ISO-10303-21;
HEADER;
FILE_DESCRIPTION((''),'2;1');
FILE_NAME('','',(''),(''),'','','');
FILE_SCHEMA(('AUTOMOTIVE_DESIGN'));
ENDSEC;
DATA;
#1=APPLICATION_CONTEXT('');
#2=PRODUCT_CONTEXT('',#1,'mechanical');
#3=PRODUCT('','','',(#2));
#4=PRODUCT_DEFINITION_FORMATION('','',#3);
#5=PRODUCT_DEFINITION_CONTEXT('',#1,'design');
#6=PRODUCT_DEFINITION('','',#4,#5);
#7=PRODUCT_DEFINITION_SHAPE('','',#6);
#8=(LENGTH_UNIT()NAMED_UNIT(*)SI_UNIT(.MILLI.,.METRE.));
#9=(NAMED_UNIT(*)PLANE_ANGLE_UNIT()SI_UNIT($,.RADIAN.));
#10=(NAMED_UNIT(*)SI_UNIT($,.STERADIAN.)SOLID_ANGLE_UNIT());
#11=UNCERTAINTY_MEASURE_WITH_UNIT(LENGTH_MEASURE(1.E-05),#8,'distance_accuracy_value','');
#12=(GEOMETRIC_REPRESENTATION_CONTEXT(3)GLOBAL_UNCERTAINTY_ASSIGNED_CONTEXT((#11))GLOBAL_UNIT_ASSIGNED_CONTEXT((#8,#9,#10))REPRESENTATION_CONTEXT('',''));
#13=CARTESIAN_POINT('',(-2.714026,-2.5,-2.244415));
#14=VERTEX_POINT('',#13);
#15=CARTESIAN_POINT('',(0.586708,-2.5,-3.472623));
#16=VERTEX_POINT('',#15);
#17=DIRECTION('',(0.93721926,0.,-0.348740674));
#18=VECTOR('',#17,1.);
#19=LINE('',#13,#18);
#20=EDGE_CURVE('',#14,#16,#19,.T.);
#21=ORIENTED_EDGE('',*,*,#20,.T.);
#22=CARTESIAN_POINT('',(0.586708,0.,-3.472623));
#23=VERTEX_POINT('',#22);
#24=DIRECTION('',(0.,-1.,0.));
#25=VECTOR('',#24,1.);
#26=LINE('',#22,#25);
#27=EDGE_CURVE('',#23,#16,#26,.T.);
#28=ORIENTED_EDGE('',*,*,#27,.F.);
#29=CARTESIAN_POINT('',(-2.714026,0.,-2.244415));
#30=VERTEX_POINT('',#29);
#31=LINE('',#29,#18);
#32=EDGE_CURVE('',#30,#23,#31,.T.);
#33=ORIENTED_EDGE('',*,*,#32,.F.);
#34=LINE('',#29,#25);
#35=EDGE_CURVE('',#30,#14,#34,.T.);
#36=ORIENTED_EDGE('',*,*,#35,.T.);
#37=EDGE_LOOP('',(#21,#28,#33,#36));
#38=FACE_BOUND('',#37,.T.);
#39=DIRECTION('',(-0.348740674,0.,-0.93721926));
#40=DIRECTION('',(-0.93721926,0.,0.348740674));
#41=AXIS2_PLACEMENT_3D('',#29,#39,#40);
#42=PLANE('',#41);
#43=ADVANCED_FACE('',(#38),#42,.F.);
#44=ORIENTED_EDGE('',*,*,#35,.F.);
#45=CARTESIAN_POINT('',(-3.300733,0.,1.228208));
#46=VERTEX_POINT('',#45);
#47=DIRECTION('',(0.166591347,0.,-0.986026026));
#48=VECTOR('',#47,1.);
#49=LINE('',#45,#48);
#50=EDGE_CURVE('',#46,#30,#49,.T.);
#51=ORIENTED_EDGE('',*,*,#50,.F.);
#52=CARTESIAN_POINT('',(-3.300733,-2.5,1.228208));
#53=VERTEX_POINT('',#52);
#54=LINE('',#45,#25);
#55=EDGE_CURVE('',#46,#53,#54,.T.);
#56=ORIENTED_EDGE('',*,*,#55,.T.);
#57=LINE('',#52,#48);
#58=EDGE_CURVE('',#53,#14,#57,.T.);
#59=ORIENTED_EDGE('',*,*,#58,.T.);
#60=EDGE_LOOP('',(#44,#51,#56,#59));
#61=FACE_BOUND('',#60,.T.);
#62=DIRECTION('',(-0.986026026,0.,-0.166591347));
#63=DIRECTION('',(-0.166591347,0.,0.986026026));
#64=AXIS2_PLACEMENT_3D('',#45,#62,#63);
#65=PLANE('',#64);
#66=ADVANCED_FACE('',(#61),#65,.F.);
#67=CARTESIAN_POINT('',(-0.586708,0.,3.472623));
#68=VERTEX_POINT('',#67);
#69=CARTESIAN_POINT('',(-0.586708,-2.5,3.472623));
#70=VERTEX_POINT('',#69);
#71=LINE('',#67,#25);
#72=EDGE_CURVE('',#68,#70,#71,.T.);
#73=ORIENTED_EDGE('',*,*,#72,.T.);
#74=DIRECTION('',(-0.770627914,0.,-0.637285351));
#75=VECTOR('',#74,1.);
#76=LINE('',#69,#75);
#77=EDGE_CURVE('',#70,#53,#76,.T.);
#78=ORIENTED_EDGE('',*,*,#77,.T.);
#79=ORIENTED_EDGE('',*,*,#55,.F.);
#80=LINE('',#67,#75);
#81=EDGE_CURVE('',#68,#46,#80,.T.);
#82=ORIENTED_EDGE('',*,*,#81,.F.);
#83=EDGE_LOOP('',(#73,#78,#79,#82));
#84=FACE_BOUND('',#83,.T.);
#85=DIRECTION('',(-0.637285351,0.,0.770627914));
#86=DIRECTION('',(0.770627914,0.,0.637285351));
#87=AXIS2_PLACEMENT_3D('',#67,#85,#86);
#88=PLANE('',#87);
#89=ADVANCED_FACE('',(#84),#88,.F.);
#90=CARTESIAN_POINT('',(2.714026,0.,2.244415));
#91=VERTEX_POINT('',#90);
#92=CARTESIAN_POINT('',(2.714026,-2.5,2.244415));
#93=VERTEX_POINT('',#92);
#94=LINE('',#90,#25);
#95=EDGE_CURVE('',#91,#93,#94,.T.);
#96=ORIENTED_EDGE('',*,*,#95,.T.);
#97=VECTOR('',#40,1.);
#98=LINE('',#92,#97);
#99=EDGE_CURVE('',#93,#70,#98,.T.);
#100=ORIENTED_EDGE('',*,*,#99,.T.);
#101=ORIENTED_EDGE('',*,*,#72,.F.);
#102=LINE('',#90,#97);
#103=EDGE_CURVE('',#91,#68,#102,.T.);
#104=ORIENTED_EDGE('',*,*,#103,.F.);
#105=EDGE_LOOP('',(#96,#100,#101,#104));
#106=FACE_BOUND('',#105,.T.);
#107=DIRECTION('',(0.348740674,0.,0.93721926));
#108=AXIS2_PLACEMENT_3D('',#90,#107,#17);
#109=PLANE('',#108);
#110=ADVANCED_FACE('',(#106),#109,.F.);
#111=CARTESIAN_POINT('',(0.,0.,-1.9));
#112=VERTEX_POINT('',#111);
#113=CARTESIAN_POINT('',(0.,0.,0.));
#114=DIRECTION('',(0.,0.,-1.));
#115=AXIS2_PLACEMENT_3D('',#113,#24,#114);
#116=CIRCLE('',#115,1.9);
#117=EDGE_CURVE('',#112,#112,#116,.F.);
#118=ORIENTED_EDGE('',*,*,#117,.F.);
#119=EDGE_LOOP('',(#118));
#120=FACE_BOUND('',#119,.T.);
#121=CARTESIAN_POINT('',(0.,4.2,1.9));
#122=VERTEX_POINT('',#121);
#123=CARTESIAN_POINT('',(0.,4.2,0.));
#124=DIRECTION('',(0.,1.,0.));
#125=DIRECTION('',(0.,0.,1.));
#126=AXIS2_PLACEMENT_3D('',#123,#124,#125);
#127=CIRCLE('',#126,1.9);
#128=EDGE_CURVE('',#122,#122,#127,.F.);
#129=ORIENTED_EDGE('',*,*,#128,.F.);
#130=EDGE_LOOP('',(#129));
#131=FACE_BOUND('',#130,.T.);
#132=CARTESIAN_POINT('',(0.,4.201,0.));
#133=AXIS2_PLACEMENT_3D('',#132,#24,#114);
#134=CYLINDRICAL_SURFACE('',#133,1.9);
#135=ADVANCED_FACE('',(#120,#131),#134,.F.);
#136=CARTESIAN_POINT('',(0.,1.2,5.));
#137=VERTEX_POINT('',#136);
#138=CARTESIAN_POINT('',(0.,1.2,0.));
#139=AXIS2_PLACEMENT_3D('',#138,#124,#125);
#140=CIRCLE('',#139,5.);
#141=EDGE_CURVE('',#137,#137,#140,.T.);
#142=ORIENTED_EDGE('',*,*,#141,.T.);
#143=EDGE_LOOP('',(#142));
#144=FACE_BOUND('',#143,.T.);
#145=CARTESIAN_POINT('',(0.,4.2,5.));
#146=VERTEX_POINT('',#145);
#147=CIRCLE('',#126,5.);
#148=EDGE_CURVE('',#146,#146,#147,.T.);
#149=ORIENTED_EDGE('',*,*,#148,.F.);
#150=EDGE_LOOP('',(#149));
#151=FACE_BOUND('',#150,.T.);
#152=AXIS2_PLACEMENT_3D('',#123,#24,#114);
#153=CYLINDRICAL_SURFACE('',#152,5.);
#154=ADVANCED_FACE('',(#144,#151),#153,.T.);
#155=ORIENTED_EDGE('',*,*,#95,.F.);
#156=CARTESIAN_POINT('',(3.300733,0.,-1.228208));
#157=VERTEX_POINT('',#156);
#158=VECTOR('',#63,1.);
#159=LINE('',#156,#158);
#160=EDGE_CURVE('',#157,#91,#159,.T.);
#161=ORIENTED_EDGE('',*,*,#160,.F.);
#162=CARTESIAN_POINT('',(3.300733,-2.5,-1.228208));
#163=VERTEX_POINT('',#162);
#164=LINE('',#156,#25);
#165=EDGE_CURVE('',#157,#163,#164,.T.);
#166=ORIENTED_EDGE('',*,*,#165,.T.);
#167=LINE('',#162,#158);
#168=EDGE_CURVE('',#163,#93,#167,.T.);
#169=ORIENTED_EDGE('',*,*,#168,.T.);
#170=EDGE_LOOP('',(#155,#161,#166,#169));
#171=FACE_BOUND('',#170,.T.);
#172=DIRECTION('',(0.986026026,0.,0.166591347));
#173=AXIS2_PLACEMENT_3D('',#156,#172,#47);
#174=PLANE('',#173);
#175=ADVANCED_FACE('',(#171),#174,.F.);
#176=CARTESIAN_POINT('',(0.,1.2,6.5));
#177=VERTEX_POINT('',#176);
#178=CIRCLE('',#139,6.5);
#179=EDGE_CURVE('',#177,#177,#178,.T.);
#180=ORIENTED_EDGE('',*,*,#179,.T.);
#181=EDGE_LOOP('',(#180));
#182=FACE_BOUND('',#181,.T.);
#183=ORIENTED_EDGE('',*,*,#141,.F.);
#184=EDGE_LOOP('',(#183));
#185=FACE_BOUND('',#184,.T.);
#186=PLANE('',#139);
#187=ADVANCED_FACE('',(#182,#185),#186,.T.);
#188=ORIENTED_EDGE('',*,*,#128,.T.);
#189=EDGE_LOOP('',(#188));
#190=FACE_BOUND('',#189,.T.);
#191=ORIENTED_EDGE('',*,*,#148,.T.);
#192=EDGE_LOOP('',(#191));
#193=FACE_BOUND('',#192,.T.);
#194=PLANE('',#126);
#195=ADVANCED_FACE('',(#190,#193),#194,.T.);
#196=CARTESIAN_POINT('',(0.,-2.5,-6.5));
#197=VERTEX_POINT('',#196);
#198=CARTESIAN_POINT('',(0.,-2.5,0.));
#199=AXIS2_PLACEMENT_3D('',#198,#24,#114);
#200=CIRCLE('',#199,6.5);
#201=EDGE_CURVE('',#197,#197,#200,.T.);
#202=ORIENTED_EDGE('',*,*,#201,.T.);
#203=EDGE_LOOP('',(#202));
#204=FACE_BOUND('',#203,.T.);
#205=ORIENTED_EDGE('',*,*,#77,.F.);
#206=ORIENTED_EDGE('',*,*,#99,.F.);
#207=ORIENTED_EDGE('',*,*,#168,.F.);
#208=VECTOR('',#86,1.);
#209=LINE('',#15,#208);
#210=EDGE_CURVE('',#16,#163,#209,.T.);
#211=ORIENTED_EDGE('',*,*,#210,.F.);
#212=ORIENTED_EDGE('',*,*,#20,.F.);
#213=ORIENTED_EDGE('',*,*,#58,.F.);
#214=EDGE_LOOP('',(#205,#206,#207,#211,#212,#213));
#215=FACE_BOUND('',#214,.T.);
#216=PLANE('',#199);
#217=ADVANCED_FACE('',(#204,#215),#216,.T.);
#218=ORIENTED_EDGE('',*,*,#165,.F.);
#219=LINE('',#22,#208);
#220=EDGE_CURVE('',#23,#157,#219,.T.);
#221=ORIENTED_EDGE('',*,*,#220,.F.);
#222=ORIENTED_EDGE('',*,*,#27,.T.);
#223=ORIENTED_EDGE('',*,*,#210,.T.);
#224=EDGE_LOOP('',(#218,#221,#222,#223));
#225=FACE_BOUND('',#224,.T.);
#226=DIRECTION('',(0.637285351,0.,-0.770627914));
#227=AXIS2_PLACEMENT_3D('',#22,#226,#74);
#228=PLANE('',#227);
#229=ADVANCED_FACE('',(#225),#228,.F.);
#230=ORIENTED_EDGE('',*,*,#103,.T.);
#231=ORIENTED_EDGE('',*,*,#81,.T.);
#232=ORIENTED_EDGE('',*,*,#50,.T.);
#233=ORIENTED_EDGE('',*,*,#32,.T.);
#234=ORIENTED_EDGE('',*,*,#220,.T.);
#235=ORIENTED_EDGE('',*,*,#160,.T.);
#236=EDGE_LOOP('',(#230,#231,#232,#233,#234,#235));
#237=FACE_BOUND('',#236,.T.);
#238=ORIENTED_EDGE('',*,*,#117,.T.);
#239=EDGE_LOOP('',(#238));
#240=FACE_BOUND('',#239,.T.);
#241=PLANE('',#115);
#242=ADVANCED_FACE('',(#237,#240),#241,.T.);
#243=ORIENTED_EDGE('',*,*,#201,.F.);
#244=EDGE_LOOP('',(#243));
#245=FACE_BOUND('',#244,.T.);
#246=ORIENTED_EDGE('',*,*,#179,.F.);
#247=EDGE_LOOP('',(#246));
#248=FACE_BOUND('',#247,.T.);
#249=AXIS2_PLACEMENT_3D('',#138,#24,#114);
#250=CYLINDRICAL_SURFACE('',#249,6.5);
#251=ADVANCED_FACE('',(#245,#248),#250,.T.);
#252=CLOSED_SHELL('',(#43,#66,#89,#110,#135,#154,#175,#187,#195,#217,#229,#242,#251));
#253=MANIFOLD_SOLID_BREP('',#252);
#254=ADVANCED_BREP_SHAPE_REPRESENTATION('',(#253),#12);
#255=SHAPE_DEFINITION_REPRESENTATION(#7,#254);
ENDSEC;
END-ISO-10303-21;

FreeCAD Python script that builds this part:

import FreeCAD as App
import Part
import Sketcher
Q = App.Units.Quantity

doc = App.newDocument("Part")
body = doc.addObject("PartDesign::Body", "Body")

# Sketch on XZ plane
sketch1 = doc.addObject("Sketcher::SketchObject", "Sketch")
body.addObject(sketch1)
sketch1.AttachmentSupport = (doc.XZ_Plane, [""])
sketch1.MapMode = "FlatFace"
sketch1.addGeometry(Part.Circle(App.Vector(0, 0, 0), App.Vector(0, 0, 1), 6), False)
sketch1.addConstraint([
    Sketcher.Constraint("Coincident", 0, 3, -1, 1),
    Sketcher.Constraint("Diameter", 0, Q("13 mm")),
])
pad1 = doc.addObject("PartDesign::Pad", "Pad")
body.addObject(pad1)
pad1.Profile = sketch1
pad1.Length = 1.2
pad1.Reversed = True

# Sketch on XZ plane
sketch2 = doc.addObject("Sketcher::SketchObject", "Sketch001")
body.addObject(sketch2)
sketch2.AttachmentSupport = (doc.XZ_Plane, [""])
sketch2.MapMode = "FlatFace"
sketch2.AttachmentOffset = App.Placement(App.Vector(0, 0, -1.2), App.Rotation())
sketch2.addGeometry(Part.Circle(App.Vector(0, 0, 0), App.Vector(0, 0, 1), 5), False)
sketch2.addConstraint([
    Sketcher.Constraint("Coincident", 0, 3, -1, 1),
    Sketcher.Constraint("Diameter", 0, Q("10 mm")),
])
pad2 = doc.addObject("PartDesign::Pad", "Pad001")
body.addObject(pad2)
pad2.Profile = sketch2
pad2.Length = 3
pad2.Reversed = True

# Sketch on XZ plane
sketch3 = doc.addObject("Sketcher::SketchObject", "Sketch002")
body.addObject(sketch3)
sketch3.AttachmentSupport = (doc.XZ_Plane, [""])
sketch3.MapMode = "FlatFace"
sketch3.AttachmentOffset = App.Placement(App.Vector(0, 0, -4.2), App.Rotation())
sketch3.addGeometry(Part.Circle(App.Vector(0, 0, 0), App.Vector(0, 0, 1), 1.8), False)
sketch3.addConstraint([
    Sketcher.Constraint("Coincident", 0, 3, -1, 1),
    Sketcher.Constraint("Diameter", 0, Q("3.6 mm")),
])
pocket1 = doc.addObject("PartDesign::Pocket", "Pocket")
body.addObject(pocket1)
pocket1.Profile = sketch3
pocket1.Length = 3
pocket1.Reversed = True

# Sketch on XZ plane
sketch4 = doc.addObject("Sketcher::SketchObject", "Sketch003")
body.addObject(sketch4)
sketch4.AttachmentSupport = (doc.XZ_Plane, [""])
sketch4.MapMode = "FlatFace"
sketch4.addGeometry(Part.Circle(App.Vector(0, 0, 0), App.Vector(0, 0, 1), 1.9), False)
sketch4.addConstraint([
    Sketcher.Constraint("Coincident", 0, 3, -1, 1),
    Sketcher.Constraint("Diameter", 0, Q("3.8 mm")),
])
pocket2 = doc.addObject("PartDesign::Pocket", "Pocket001")
body.addObject(pocket2)
pocket2.Profile = sketch4
pocket2.Length = 4.2

# Sketch on XZ plane
sketch5 = doc.addObject("Sketcher::SketchObject", "Sketch004")
body.addObject(sketch5)
sketch5.AttachmentSupport = (doc.XZ_Plane, [""])
sketch5.MapMode = "FlatFace"
sketch5.addGeometry(Part.Circle(App.Vector(0, 0, 0), App.Vector(0, 0, 1), 6), False)
sketch5.addConstraint([
    Sketcher.Constraint("Coincident", 0, 3, -1, 1),
    Sketcher.Constraint("Diameter", 0, Q("13 mm")),
])
pad3 = doc.addObject("PartDesign::Pad", "Pad002")
body.addObject(pad3)
pad3.Profile = sketch5
pad3.Length = 2.5

# Sketch on XZ plane
sketch6 = doc.addObject("Sketcher::SketchObject", "Sketch005")
body.addObject(sketch6)
sketch6.AttachmentSupport = (doc.XZ_Plane, [""])
sketch6.MapMode = "FlatFace"
sketch6.AttachmentOffset = App.Placement(App.Vector(0, 0, 2.5), App.Rotation())
sketch6.addGeometry([
    Part.LineSegment(App.Vector(-3.3, 1.2, 0), App.Vector(-2.7, -2.2, 0)),  # 0
    Part.LineSegment(App.Vector(-2.7, -2.2, 0), App.Vector(0.6, -3.5, 0)),  # 1
    Part.LineSegment(App.Vector(0.6, -3.5, 0), App.Vector(3.3, -1.2, 0)),  # 2
    Part.LineSegment(App.Vector(3.3, -1.2, 0), App.Vector(2.7, 2.2, 0)),  # 3
    Part.LineSegment(App.Vector(2.7, 2.2, 0), App.Vector(-0.6, 3.5, 0)),  # 4
    Part.LineSegment(App.Vector(-0.6, 3.5, 0), App.Vector(-3.3, 1.2, 0)),  # 5
], False)
sketch6.addConstraint([
    Sketcher.Constraint("Coincident", 0, 2, 1, 1),
    Sketcher.Constraint("Coincident", 1, 2, 2, 1),
    Sketcher.Constraint("Coincident", 2, 2, 3, 1),
    Sketcher.Constraint("Coincident", 3, 2, 4, 1),
    Sketcher.Constraint("Coincident", 4, 2, 5, 1),
    Sketcher.Constraint("Coincident", 5, 2, 0, 1),
    Sketcher.Constraint("Symmetric", 0, 2, 3, 2, -1, 1),
    Sketcher.Constraint("Symmetric", 1, 2, 4, 2, -1, 1),
    Sketcher.Constraint("Symmetric", 2, 2, 5, 2, -1, 1),
    Sketcher.Constraint("Equal", 0, 1),
    Sketcher.Constraint("Equal", 1, 2),
    Sketcher.Constraint("DistanceX", 0, 2, 2, 2, Q("6.014759 mm")),
    Sketcher.Constraint("DistanceX", 1, 2, 3, 2, Q("2.127318 mm")),
    Sketcher.Constraint("DistanceX", 0, 2, 3, 2, Q("5.428051 mm")),
    Sketcher.Constraint("DistanceY", 0, 2, 3, 2, Q("4.48883 mm")),
])
pocket3 = doc.addObject("PartDesign::Pocket", "Pocket002")
body.addObject(pocket3)
pocket3.Profile = sketch6
pocket3.Length = 2.5

doc.recompute()
